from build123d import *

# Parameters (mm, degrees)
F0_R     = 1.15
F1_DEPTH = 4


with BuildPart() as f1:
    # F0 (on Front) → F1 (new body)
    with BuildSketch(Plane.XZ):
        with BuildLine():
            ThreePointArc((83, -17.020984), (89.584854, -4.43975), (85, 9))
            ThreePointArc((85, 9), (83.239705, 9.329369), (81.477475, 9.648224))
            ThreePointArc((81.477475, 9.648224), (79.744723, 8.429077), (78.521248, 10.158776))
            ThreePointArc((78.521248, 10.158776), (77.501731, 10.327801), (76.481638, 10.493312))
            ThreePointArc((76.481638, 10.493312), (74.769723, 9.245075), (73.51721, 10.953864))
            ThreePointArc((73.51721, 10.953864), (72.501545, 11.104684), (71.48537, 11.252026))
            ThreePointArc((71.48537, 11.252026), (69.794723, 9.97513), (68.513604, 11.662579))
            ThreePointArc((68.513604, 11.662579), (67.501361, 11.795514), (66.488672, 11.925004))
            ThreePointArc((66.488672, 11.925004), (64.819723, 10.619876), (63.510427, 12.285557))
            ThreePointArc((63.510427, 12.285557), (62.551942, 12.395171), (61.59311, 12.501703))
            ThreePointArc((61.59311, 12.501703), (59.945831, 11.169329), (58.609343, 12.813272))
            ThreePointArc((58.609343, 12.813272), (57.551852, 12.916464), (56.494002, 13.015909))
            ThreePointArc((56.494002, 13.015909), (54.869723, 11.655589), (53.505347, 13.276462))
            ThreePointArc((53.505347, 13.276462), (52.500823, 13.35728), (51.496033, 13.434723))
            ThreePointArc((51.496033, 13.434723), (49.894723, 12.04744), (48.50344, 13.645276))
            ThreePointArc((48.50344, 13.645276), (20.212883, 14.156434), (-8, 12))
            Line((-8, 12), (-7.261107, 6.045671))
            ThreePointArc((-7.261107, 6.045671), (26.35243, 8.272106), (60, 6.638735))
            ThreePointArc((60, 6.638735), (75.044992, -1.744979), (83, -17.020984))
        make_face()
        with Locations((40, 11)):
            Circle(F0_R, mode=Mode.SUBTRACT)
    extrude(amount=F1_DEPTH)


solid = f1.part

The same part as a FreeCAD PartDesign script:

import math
import FreeCAD as App
import Part
import Sketcher
from FreeCAD import Vector
Q = App.Units.Quantity

doc = App.newDocument("Part")
body = doc.addObject("PartDesign::Body", "Body")

sketch1 = body.newObject("Sketcher::SketchObject", "Sketch")
sketch1.AttachmentSupport = (doc.getObject("XZ_Plane"), [""])
sketch1.MapMode = "FlatFace"
sketch1.addGeometry(Part.ArcOfCircle(Part.Circle(Vector(71.6, -3.1, 0), Vector(0, 0, 1), 18), math.radians(-51), math.radians(42)), False)
sketch1.addGeometry(Part.ArcOfCircle(Part.Circle(Vector(28.9, -285.7, 0), Vector(0, 0, 1), 300), math.radians(79.23), math.radians(79.91)), False)
sketch1.addGeometry(Part.ArcOfCircle(Part.Circle(Vector(80, 9.9, 0), Vector(0, 0, 1), 1.5), math.radians(170), math.radians(350)), False)
sketch1.addGeometry(Part.ArcOfCircle(Part.Circle(Vector(29, -285.6, 0), Vector(0, 0, 1), 299.9), math.radians(80.49), math.radians(80.88)), False)
sketch1.addGeometry(Part.ArcOfCircle(Part.Circle(Vector(75, 10.7, 0), Vector(0, 0, 1), 1.5), math.radians(171), math.radians(351)), False)
sketch1.addGeometry(Part.ArcOfCircle(Part.Circle(Vector(29, -285.6, 0), Vector(0, 0, 1), 299.9), math.radians(81.46), math.radians(81.85)), False)
sketch1.addGeometry(Part.ArcOfCircle(Part.Circle(Vector(70, 11.5, 0), Vector(0, 0, 1), 1.5), math.radians(172), math.radians(352)), False)
sketch1.addGeometry(Part.ArcOfCircle(Part.Circle(Vector(28.9, -285.8, 0), Vector(0, 0, 1), 300.1), math.radians(82.42), math.radians(82.81)), False)
sketch1.addGeometry(Part.ArcOfCircle(Part.Circle(Vector(65, 12.1, 0), Vector(0, 0, 1), 1.5), math.radians(173), math.radians(353)), False)
sketch1.addGeometry(Part.ArcOfCircle(Part.Circle(Vector(28.9, -285.8, 0), Vector(0, 0, 1), 300.1), math.radians(83.38), math.radians(83.75)), False)
sketch1.addGeometry(Part.ArcOfCircle(Part.Circle(Vector(60.1, 12.7, 0), Vector(0, 0, 1), 1.5), math.radians(174), math.radians(354)), False)
sketch1.addGeometry(Part.ArcOfCircle(Part.Circle(Vector(29, -285.6, 0), Vector(0, 0, 1), 299.9), math.radians(84.33), math.radians(84.73)), False)
sketch1.addGeometry(Part.ArcOfCircle(Part.Circle(Vector(55, 13.1, 0), Vector(0, 0, 1), 1.5), math.radians(175), math.radians(355)), False)
sketch1.addGeometry(Part.ArcOfCircle(Part.Circle(Vector(28.9, -285.7, 0), Vector(0, 0, 1), 300), math.radians(85.3), math.radians(85.69)), False)
sketch1.addGeometry(Part.ArcOfCircle(Part.Circle(Vector(50, 13.5, 0), Vector(0, 0, 1), 1.5), math.radians(176), math.radians(356)), False)
sketch1.addGeometry(Part.ArcOfCircle(Part.Circle(Vector(28.9, -285.7, 0), Vector(0, 0, 1), 300), math.radians(86.26), math.radians(97.07)), False)
sketch1.addGeometry(Part.LineSegment(Vector(-8, 12, 0), Vector(-7.3, 6, 0)), False)
sketch1.addGeometry(Part.ArcOfCircle(Part.Circle(Vector(28.9, -285.7, 0), Vector(0, 0, 1), 294), math.radians(83.94), math.radians(97.07)), False)
sketch1.addGeometry(Part.ArcOfCircle(Part.Circle(Vector(53.5, -22.7, 0), Vector(0, 0, 1), 30), math.radians(11), math.radians(78)), False)
sketch1.addGeometry(Part.Circle(Vector(40, 11, 0), Vector(0, 0, 1), 1.1), False)
sketch1.addConstraint(Sketcher.Constraint("Coincident", 0, 2, 1, 1))
sketch1.addConstraint(Sketcher.Constraint("Coincident", 1, 2, 2, 2))
sketch1.addConstraint(Sketcher.Constraint("Coincident", 2, 1, 3, 1))
sketch1.addConstraint(Sketcher.Constraint("Coincident", 3, 2, 4, 2))
sketch1.addConstraint(Sketcher.Constraint("Coincident", 4, 1, 5, 1))
sketch1.addConstraint(Sketcher.Constraint("Coincident", 5, 2, 6, 2))
sketch1.addConstraint(Sketcher.Constraint("Coincident", 6, 1, 7, 1))
sketch1.addConstraint(Sketcher.Constraint("Coincident", 7, 2, 8, 2))
sketch1.addConstraint(Sketcher.Constraint("Coincident", 8, 1, 9, 1))
sketch1.addConstraint(Sketcher.Constraint("Coincident", 9, 2, 10, 2))
sketch1.addConstraint(Sketcher.Constraint("Coincident", 10, 1, 11, 1))
sketch1.addConstraint(Sketcher.Constraint("Coincident", 11, 2, 12, 2))
sketch1.addConstraint(Sketcher.Constraint("Coincident", 12, 1, 13, 1))
sketch1.addConstraint(Sketcher.Constraint("Coincident", 13, 2, 14, 2))
sketch1.addConstraint(Sketcher.Constraint("Coincident", 14, 1, 15, 1))
sketch1.addConstraint(Sketcher.Constraint("Coincident", 15, 2, 16, 1))
sketch1.addConstraint(Sketcher.Constraint("Coincident", 16, 2, 17, 2))
sketch1.addConstraint(Sketcher.Constraint("Coincident", 17, 1, 18, 2))
sketch1.addConstraint(Sketcher.Constraint("Coincident", 18, 1, 0, 1))
sketch1.addConstraint(Sketcher.Constraint("Equal", 2, 4))
sketch1.addConstraint(Sketcher.Constraint("Equal", 4, 6))
sketch1.addConstraint(Sketcher.Constraint("Equal", 6, 8))
sketch1.addConstraint(Sketcher.Constraint("Equal", 8, 10))
sketch1.addConstraint(Sketcher.Constraint("Equal", 10, 12))
sketch1.addConstraint(Sketcher.Constraint("Equal", 12, 14))
sketch1.addConstraint(Sketcher.Constraint("Radius", 0, Q("18.000001 mm")))
sketch1.addConstraint(Sketcher.Constraint("Diameter", 19, Q("2.3 mm")))
sketch1.addConstraint(Sketcher.Constraint("Radius", 2, Q("1.5 mm")))
sketch1.addConstraint(Sketcher.Constraint("Distance", 16, Q("6 mm")))
sketch1.addConstraint(Sketcher.Constraint("DistanceX", -1, 1, 2, 3, Q("80 mm")))
sketch1.addConstraint(Sketcher.Constraint("DistanceX", -1, 1, 4, 3, Q("75 mm")))
sketch1.addConstraint(Sketcher.Constraint("DistanceX", -1, 1, 6, 3, Q("70 mm")))
sketch1.addConstraint(Sketcher.Constraint("DistanceX", -1, 1, 8, 3, Q("65 mm")))
sketch1.addConstraint(Sketcher.Constraint("DistanceX", -1, 1, 12, 3, Q("55 mm")))
sketch1.addConstraint(Sketcher.Constraint("DistanceX", -1, 1, 14, 3, Q("50 mm")))
sketch1.addConstraint(Sketcher.Constraint("DistanceX", -1, 1, 19, 3, Q("40 mm")))
sketch1.addConstraint(Sketcher.Constraint("DistanceY", -1, 1, 19, 3, Q("11 mm")))
sketch1.addConstraint(Sketcher.Constraint("DistanceX", -1, 1, 0, 2, Q("85 mm")))
sketch1.addConstraint(Sketcher.Constraint("DistanceY", -1, 1, 0, 2, Q("9 mm")))
sketch1.addConstraint(Sketcher.Constraint("DistanceX", 15, 2, -1, 1, Q("8 mm")))
sketch1.addConstraint(Sketcher.Constraint("DistanceY", -1, 1, 15, 2, Q("12 mm")))
sketch1.addConstraint(Sketcher.Constraint("DistanceX", -1, 1, 17, 1, Q("60 mm")))
sketch1.addConstraint(Sketcher.Constraint("DistanceX", -1, 1, 18, 1, Q("83 mm")))
sketch1.addConstraint(Sketcher.Constraint("Radius", 1, Q("299.995311 mm")))
sketch1.addConstraint(Sketcher.Constraint("Radius", 7, Q("300.052411 mm")))
sketch1.addConstraint(Sketcher.Constraint("Radius", 11, Q("299.917189 mm")))
sketch1.addConstraint(Sketcher.Constraint("Radius", 15, Q("300.000058 mm")))
sketch1.addConstraint(Sketcher.Constraint("Radius", 17, Q("293.999948 mm")))
sketch1.addConstraint(Sketcher.Constraint("Radius", 3, Q("299.920118 mm")))
sketch1.addConstraint(Sketcher.Constraint("Radius", 5, Q("299.932776 mm")))
sketch1.addConstraint(Sketcher.Constraint("Radius", 9, Q("300.085925 mm")))
sketch1.addConstraint(Sketcher.Constraint("Radius", 13, Q("299.988287 mm")))
sketch1.addConstraint(Sketcher.Constraint("Radius", 18, Q("29.999997 mm")))
sketch1.addConstraint(Sketcher.Constraint("DistanceY", 7, 2, 8, 3, Q("0.183999 mm")))
sketch1.addConstraint(Sketcher.Constraint("DistanceX", -1, 1, 3, 3, Q("28.9576 mm")))
sketch1.addConstraint(Sketcher.Constraint("DistanceY", 2, 3, 4, 3, Q("0.820098 mm")))
sketch1.addConstraint(Sketcher.Constraint("DistanceY", 7, 3, 1, 3, Q("0.056601 mm")))
sketch1.addConstraint(Sketcher.Constraint("DistanceY", 6, 3, 10, 3, Q("1.2002 mm")))
sketch1.addConstraint(Sketcher.Constraint("DistanceY", 18, 3, 14, 3, Q("36.1999 mm")))
sketch1.addConstraint(Sketcher.Constraint("DistanceY", 8, 3, 9, 2, Q("0.3927 mm")))
sketch1.addConstraint(Sketcher.Constraint("DistanceY", 12, 3, 13, 2, Q("0.284802 mm")))
sketch1.addConstraint(Sketcher.Constraint("DistanceY", 0, 3, -1, 1, Q("3.060319 mm")))
sketch1.addConstraint(Sketcher.Constraint("DistanceX", -1, 1, 1, 3, Q("28.94547 mm")))
sketch1.addConstraint(Sketcher.Constraint("DistanceX", -1, 1, 5, 3, Q("28.95434 mm")))
sketch1.addConstraint(Sketcher.Constraint("DistanceX", -1, 1, 7, 3, Q("28.93798 mm")))
sketch1.addConstraint(Sketcher.Constraint("DistanceY", 11, 3, -1, 1, Q("285.63403 mm")))
sketch1.addConstraint(Sketcher.Constraint("DistanceY", -1, 1, 12, 3, Q("13.149921 mm")))
sketch1.addConstraint(Sketcher.Constraint("DistanceX", -1, 1, 13, 3, Q("28.945588 mm")))
sketch1.addConstraint(Sketcher.Constraint("DistanceY", -1, 1, 14, 3, Q("13.543741 mm")))
sketch1.addConstraint(Sketcher.Constraint("DistanceX", -1, 1, 15, 3, Q("28.94463 mm")))
sketch1.addConstraint(Sketcher.Constraint("DistanceX", -1, 1, 4, 1, Q("73.51721 mm")))
sketch1.addConstraint(Sketcher.Constraint("DistanceY", -1, 1, 6, 1, Q("11.662579 mm")))
sketch1.addConstraint(Sketcher.Constraint("DistanceX", -1, 1, 9, 2, Q("61.59311 mm")))
sketch1.addConstraint(Sketcher.Constraint("DistanceY", -1, 1, 10, 1, Q("12.813272 mm")))
sketch1.addConstraint(Sketcher.Constraint("DistanceY", -1, 1, 16, 2, Q("6.045671 mm")))
sketch1.addConstraint(Sketcher.Constraint("DistanceY", 1, 3, 2, 3, Q("295.619048 mm")))
sketch1.addConstraint(Sketcher.Constraint("DistanceY", 1, 3, 3, 3, Q("0.07421 mm")))
sketch1.addConstraint(Sketcher.Constraint("DistanceY", 9, 3, 7, 3, Q("0.03341 mm")))
pad1 = body.newObject("PartDesign::Pad", "Pad")
pad1.Profile = sketch1
pad1.Length = 4

doc.recompute()
